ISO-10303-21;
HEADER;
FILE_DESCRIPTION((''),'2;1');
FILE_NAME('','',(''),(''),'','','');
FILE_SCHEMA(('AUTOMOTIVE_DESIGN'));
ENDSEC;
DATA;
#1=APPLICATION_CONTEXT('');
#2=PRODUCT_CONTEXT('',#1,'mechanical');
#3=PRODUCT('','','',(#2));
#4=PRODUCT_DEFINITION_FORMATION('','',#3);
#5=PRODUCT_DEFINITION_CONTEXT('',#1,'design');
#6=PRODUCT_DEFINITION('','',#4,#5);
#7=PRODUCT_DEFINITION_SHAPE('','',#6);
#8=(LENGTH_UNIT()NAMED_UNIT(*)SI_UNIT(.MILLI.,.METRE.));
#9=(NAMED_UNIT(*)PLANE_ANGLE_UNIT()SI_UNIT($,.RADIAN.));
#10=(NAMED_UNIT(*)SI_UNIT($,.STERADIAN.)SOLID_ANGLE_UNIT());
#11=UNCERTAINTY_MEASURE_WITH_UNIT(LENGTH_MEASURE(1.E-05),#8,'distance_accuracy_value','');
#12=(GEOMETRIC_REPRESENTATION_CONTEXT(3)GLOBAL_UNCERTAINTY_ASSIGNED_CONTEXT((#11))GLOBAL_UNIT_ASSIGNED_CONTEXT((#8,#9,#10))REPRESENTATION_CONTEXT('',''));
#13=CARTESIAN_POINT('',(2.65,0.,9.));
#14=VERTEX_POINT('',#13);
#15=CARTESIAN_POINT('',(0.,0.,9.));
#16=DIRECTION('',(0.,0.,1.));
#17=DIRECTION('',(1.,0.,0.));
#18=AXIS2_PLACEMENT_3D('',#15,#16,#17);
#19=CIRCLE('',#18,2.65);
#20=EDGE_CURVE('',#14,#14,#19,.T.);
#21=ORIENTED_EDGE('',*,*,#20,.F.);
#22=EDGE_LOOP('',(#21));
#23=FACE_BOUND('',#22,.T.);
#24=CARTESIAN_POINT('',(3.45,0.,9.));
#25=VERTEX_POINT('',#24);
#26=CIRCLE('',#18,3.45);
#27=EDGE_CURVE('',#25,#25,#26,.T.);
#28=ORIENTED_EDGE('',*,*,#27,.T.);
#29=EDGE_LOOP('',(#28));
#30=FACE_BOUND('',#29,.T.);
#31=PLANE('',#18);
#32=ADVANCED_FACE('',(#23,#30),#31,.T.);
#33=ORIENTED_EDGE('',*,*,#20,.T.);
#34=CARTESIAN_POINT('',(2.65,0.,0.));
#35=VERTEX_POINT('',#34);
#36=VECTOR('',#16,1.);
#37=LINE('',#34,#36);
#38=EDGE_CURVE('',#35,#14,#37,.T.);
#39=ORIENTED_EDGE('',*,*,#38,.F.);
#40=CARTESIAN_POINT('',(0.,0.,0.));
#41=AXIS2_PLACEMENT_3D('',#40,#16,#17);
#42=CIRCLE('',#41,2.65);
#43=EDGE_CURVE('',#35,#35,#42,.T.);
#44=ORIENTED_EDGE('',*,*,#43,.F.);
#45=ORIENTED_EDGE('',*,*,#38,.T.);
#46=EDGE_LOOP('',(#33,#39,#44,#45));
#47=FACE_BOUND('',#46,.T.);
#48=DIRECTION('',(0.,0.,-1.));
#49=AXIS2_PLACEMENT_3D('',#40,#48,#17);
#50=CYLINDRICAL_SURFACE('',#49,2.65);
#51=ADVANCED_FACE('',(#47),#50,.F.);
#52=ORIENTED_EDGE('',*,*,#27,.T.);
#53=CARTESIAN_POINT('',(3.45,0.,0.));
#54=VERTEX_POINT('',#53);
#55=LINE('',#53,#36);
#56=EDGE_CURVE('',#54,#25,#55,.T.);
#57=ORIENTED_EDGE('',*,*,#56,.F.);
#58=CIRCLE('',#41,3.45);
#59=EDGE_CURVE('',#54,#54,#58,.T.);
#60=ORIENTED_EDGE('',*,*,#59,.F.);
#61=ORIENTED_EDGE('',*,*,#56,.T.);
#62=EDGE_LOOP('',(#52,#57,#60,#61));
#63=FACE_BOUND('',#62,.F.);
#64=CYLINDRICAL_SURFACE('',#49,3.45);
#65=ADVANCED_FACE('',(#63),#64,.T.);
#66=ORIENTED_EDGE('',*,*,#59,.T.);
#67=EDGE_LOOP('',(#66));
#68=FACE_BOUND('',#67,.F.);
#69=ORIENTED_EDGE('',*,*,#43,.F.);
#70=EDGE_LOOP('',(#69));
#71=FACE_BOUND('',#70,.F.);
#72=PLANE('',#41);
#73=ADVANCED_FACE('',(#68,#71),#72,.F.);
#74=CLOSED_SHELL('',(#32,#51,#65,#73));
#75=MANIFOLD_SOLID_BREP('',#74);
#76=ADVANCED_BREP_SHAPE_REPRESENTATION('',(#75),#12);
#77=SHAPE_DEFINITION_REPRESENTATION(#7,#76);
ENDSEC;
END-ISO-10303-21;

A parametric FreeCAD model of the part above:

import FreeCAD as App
import Part
import Sketcher
Q = App.Units.Quantity

doc = App.newDocument("Part")
body = doc.addObject("PartDesign::Body", "Body")

# Sketch on XY plane
sketch1 = body.newObject("Sketcher::SketchObject", "Sketch")
sketch1.AttachmentSupport = (doc.getObject("XY_Plane"), [""])
sketch1.MapMode = "FlatFace"
sketch1.addGeometry(Part.Circle(App.Vector(0, 0, 0), App.Vector(0, 0, 1), 3.45), False)
sketch1.addConstraint([
    Sketcher.Constraint("Coincident", 0, 3, -1, 1),
    Sketcher.Constraint("Diameter", 0, Q("6.9 mm")),
])
pad1 = body.newObject("PartDesign::Pad", "Pad")
pad1.Profile = sketch1
pad1.Length = 9

# Sketch on XY plane
sketch2 = body.newObject("Sketcher::SketchObject", "Sketch001")
sketch2.AttachmentSupport = (doc.getObject("XY_Plane"), [""])
sketch2.MapMode = "FlatFace"
sketch2.addGeometry(Part.Circle(App.Vector(0, 0, 0), App.Vector(0, 0, 1), 2.65), False)
sketch2.addConstraint([
    Sketcher.Constraint("Coincident", 0, 3, -1, 1),
    Sketcher.Constraint("Diameter", 0, Q("5.3 mm")),
])
pocket1 = body.newObject("PartDesign::Pocket", "Pocket")
pocket1.Profile = sketch2
pocket1.Length = 9
pocket1.Reversed = True

doc.recompute()
